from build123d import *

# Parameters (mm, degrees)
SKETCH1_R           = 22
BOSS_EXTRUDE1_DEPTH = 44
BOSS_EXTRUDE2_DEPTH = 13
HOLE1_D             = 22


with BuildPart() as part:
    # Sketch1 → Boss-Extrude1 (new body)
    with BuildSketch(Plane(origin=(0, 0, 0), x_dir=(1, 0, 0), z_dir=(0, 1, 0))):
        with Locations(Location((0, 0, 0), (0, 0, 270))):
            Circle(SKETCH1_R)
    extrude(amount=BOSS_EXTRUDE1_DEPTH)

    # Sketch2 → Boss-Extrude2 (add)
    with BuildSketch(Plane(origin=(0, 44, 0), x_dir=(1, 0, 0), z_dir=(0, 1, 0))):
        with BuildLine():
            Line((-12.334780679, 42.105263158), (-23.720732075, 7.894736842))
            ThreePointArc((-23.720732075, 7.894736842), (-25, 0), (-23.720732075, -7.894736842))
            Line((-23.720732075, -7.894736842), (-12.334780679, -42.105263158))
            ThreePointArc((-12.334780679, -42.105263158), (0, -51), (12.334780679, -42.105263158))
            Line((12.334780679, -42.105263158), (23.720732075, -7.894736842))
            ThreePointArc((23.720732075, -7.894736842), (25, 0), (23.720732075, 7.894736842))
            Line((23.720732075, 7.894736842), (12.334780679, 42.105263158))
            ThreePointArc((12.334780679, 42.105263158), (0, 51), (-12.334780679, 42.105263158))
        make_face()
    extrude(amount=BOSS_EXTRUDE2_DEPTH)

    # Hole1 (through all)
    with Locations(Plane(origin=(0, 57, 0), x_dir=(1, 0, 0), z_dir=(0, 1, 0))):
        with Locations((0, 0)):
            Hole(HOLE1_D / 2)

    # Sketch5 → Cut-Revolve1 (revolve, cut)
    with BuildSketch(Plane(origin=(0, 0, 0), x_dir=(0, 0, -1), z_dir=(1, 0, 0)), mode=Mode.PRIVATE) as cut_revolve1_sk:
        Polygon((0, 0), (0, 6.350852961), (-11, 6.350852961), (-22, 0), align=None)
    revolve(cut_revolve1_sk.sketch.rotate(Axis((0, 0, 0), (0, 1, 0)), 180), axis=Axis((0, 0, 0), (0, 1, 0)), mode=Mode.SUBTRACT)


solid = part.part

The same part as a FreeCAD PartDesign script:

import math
import FreeCAD as App
import Part
import Sketcher

V = App.Vector
Q = App.Units.Quantity

doc = App.newDocument("Part")
body = doc.addObject("PartDesign::Body", "Body")

# Sketch on XZ plane
sketch1 = body.newObject("Sketcher::SketchObject", "Sketch")
sketch1.AttachmentSupport = (doc.getObject("XZ_Plane"), [""])
sketch1.MapMode = "FlatFace"
sketch1.addGeometry(Part.Circle(V(0, 0, 0), V(0, 0, 1), 22), False)
sketch1.addConstraint(Sketcher.Constraint("Coincident", 0, 3, -1, 1))
sketch1.addConstraint(Sketcher.Constraint("Diameter", 0, 44.0))
pad1 = body.newObject("PartDesign::Pad", "Pad")
pad1.Profile = sketch1
pad1.Length = 44
pad1.Reversed = True

# Sketch on XZ plane
sketch2 = body.newObject("Sketcher::SketchObject", "Sketch001")
sketch2.AttachmentSupport = (doc.getObject("XZ_Plane"), [""])
sketch2.MapMode = "FlatFace"
sketch2.AttachmentOffset = App.Placement(V(0, 0, -44), App.Rotation())
sketch2.addGeometry(Part.LineSegment(V(-12, -42, 0), V(-24, -8, 0)), False)
sketch2.addGeometry(Part.ArcOfCircle(Part.Circle(V(0, 0, 0), V(0, 0, 1), 25), math.radians(162), math.radians(198)), False)
sketch2.addGeometry(Part.LineSegment(V(-24, 8, 0), V(-12, 42, 0)), False)
sketch2.addGeometry(Part.ArcOfCircle(Part.Circle(V(0, 38, 0), V(0, 0, 1), 13), math.radians(18), math.radians(162)), False)
sketch2.addGeometry(Part.LineSegment(V(12, 42, 0), V(24, 8, 0)), False)
sketch2.addGeometry(Part.ArcOfCircle(Part.Circle(V(0, 0, 0), V(0, 0, 1), 25), math.radians(-18), math.radians(18)), False)
sketch2.addGeometry(Part.LineSegment(V(24, -8, 0), V(12, -42, 0)), False)
sketch2.addGeometry(Part.ArcOfCircle(Part.Circle(V(0, -38, 0), V(0, 0, 1), 13), math.radians(-162), math.radians(-18)), False)
sketch2.addConstraint(Sketcher.Constraint("Tangent", 0, 2, 1, 2))
sketch2.addConstraint(Sketcher.Constraint("Tangent", 1, 1, 2, 1))
sketch2.addConstraint(Sketcher.Constraint("Tangent", 2, 2, 3, 2))
sketch2.addConstraint(Sketcher.Constraint("Tangent", 3, 1, 4, 1))
sketch2.addConstraint(Sketcher.Constraint("Tangent", 4, 2, 5, 2))
sketch2.addConstraint(Sketcher.Constraint("Tangent", 5, 1, 6, 1))
sketch2.addConstraint(Sketcher.Constraint("Tangent", 6, 2, 7, 2))
sketch2.addConstraint(Sketcher.Constraint("Tangent", 7, 1, 0, 1))
sketch2.addConstraint(Sketcher.Constraint("Coincident", 1, 3, -1, 1))
sketch2.addConstraint(Sketcher.Constraint("Coincident", 5, 3, -1, 1))
sketch2.addConstraint(Sketcher.Constraint("Equal", 1, 5))
sketch2.addConstraint(Sketcher.Constraint("Equal", 3, 7))
sketch2.addConstraint(Sketcher.Constraint("Symmetric", 3, 3, 7, 3, -1, 1))
sketch2.addConstraint(Sketcher.Constraint("PointOnObject", 3, 3, -2))
sketch2.addConstraint(Sketcher.Constraint("Radius", 1, 25.0))
sketch2.addConstraint(Sketcher.Constraint("Radius", 3, 13.0))
sketch2.addConstraint(Sketcher.Constraint("DistanceY", -1, 1, 3, 3, 38.0))
pad2 = body.newObject("PartDesign::Pad", "Pad001")
pad2.Profile = sketch2
pad2.Length = 13
pad2.Reversed = True

# Sketch on XZ plane
sketch3 = body.newObject("Sketcher::SketchObject", "Sketch002")
sketch3.AttachmentSupport = (doc.getObject("XZ_Plane"), [""])
sketch3.MapMode = "FlatFace"
sketch3.AttachmentOffset = App.Placement(V(0, 0, -57), App.Rotation())
sketch3.addGeometry(Part.Circle(V(0, 0, 0), V(0, 0, 1), 11), False)
sketch3.addConstraint(Sketcher.Constraint("Coincident", 0, 3, -1, 1))
sketch3.addConstraint(Sketcher.Constraint("Diameter", 0, 22.0))
doc.recompute()
hole = body.newObject("PartDesign::Hole", "Hole")
hole.Profile = sketch3
hole.ThreadType = "None"
hole.Diameter = 22
hole.DepthType = "ThroughAll"
hole.Reversed = True

# Sketch on YZ plane
sketch4 = body.newObject("Sketcher::SketchObject", "Sketch003")
sketch4.AttachmentSupport = (doc.getObject("YZ_Plane"), [""])
sketch4.MapMode = "FlatFace"
sketch4.addGeometry(Part.LineSegment(V(0, 0, 0), V(6, 0, 0)), False)
sketch4.addGeometry(Part.LineSegment(V(6, 0, 0), V(6, 11, 0)), False)
sketch4.addGeometry(Part.LineSegment(V(6, 11, 0), V(0, 22, 0)), False)
sketch4.addGeometry(Part.LineSegment(V(0, 22, 0), V(0, 0, 0)), False)
sketch4.addConstraint(Sketcher.Constraint("Coincident", 0, 2, 1, 1))
sketch4.addConstraint(Sketcher.Constraint("Coincident", 1, 2, 2, 1))
sketch4.addConstraint(Sketcher.Constraint("Coincident", 2, 2, 3, 1))
sketch4.addConstraint(Sketcher.Constraint("Coincident", 3, 2, 0, 1))
sketch4.addConstraint(Sketcher.Constraint("Horizontal", 0))
sketch4.addConstraint(Sketcher.Constraint("Vertical", 1))
sketch4.addConstraint(Sketcher.Constraint("Vertical", 3))
sketch4.addConstraint(Sketcher.Constraint("Coincident", 3, 2, -1, 1))
sketch4.addConstraint(Sketcher.Constraint("DistanceY", 1, 1, 1, 2, 11.0))
sketch4.addConstraint(Sketcher.Constraint("DistanceY", 3, 2, 3, 1, 22.0))
sketch4.addConstraint(Sketcher.Constraint("Angle", 2, Q("120 deg")))
groove = body.newObject("PartDesign::Groove", "Groove")
groove.Profile = sketch4
groove.ReferenceAxis = (sketch4, ["H_Axis"])
groove.Angle = 360

doc.recompute()
